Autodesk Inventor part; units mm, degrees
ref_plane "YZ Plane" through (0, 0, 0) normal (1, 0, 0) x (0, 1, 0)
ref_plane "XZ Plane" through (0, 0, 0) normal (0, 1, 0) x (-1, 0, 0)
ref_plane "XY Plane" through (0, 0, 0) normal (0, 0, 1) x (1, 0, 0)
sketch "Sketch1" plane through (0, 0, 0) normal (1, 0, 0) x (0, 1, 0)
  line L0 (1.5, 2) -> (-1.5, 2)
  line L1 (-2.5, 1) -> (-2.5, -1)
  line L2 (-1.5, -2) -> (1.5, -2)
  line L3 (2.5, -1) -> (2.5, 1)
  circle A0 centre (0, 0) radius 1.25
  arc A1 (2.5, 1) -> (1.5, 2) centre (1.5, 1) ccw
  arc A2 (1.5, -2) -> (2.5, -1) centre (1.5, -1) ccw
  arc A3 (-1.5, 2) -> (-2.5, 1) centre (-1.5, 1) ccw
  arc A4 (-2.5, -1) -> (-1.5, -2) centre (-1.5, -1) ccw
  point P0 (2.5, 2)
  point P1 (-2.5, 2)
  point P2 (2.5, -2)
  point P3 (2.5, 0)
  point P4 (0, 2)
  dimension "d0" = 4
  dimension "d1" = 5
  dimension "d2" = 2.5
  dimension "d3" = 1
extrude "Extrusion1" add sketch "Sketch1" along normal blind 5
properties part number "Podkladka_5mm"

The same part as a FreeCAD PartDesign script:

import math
import FreeCAD as App
import Part
import Sketcher

V = App.Vector

doc = App.newDocument("Part")
body = doc.addObject("PartDesign::Body", "Body")

# Sketch on YZ plane
sketch1 = body.newObject("Sketcher::SketchObject", "Sketch")
sketch1.AttachmentSupport = (doc.getObject("YZ_Plane"), [""])
sketch1.MapMode = "FlatFace"
sketch1.addGeometry(Part.ArcOfCircle(Part.Circle(V(1.5, 1, 0), V(0, 0, 1), 1), math.radians(0), math.radians(90)), False)
sketch1.addGeometry(Part.LineSegment(V(1.5, 2, 0), V(-1.5, 2, 0)), False)
sketch1.addGeometry(Part.ArcOfCircle(Part.Circle(V(-1.5, 1, 0), V(0, 0, 1), 1), math.radians(90), math.radians(180)), False)
sketch1.addGeometry(Part.LineSegment(V(-2.5, 1, 0), V(-2.5, -1, 0)), False)
sketch1.addGeometry(Part.ArcOfCircle(Part.Circle(V(-1.5, -1, 0), V(0, 0, 1), 1), math.radians(180), math.radians(270)), False)
sketch1.addGeometry(Part.LineSegment(V(-1.5, -2, 0), V(1.5, -2, 0)), False)
sketch1.addGeometry(Part.ArcOfCircle(Part.Circle(V(1.5, -1, 0), V(0, 0, 1), 1), math.radians(-90), math.radians(0)), False)
sketch1.addGeometry(Part.LineSegment(V(2.5, -1, 0), V(2.5, 1, 0)), False)
sketch1.addGeometry(Part.Circle(V(0, 0, 0), V(0, 0, 1), 1.2), False)
sketch1.addConstraint(Sketcher.Constraint("Tangent", 0, 2, 1, 1))
sketch1.addConstraint(Sketcher.Constraint("Tangent", 1, 2, 2, 1))
sketch1.addConstraint(Sketcher.Constraint("Tangent", 2, 2, 3, 1))
sketch1.addConstraint(Sketcher.Constraint("Tangent", 3, 2, 4, 1))
sketch1.addConstraint(Sketcher.Constraint("Tangent", 4, 2, 5, 1))
sketch1.addConstraint(Sketcher.Constraint("Tangent", 5, 2, 6, 1))
sketch1.addConstraint(Sketcher.Constraint("Tangent", 6, 2, 7, 1))
sketch1.addConstraint(Sketcher.Constraint("Tangent", 7, 2, 0, 1))
sketch1.addConstraint(Sketcher.Constraint("Horizontal", 1))
sketch1.addConstraint(Sketcher.Constraint("Vertical", 3))
sketch1.addConstraint(Sketcher.Constraint("Horizontal", 5))
sketch1.addConstraint(Sketcher.Constraint("Vertical", 7))
sketch1.addConstraint(Sketcher.Constraint("Coincident", 8, 3, -1, 1))
sketch1.addConstraint(Sketcher.Constraint("Equal", 0, 2))
sketch1.addConstraint(Sketcher.Constraint("Equal", 2, 4))
sketch1.addConstraint(Sketcher.Constraint("Equal", 4, 6))
sketch1.addConstraint(Sketcher.Constraint("Symmetric", 0, 3, 4, 3, -1, 1))
sketch1.addConstraint(Sketcher.Constraint("Radius", 0, 1.0))
sketch1.addConstraint(Sketcher.Constraint("Diameter", 8, 2.5))
sketch1.addConstraint(Sketcher.Constraint("DistanceY", -1, 1, 0, 3, 1.0))
sketch1.addConstraint(Sketcher.Constraint("DistanceX", 2, 2, 0, 3, 4.0))
pad1 = body.newObject("PartDesign::Pad", "Pad")
pad1.Profile = sketch1
pad1.Length = 5

doc.recompute()
